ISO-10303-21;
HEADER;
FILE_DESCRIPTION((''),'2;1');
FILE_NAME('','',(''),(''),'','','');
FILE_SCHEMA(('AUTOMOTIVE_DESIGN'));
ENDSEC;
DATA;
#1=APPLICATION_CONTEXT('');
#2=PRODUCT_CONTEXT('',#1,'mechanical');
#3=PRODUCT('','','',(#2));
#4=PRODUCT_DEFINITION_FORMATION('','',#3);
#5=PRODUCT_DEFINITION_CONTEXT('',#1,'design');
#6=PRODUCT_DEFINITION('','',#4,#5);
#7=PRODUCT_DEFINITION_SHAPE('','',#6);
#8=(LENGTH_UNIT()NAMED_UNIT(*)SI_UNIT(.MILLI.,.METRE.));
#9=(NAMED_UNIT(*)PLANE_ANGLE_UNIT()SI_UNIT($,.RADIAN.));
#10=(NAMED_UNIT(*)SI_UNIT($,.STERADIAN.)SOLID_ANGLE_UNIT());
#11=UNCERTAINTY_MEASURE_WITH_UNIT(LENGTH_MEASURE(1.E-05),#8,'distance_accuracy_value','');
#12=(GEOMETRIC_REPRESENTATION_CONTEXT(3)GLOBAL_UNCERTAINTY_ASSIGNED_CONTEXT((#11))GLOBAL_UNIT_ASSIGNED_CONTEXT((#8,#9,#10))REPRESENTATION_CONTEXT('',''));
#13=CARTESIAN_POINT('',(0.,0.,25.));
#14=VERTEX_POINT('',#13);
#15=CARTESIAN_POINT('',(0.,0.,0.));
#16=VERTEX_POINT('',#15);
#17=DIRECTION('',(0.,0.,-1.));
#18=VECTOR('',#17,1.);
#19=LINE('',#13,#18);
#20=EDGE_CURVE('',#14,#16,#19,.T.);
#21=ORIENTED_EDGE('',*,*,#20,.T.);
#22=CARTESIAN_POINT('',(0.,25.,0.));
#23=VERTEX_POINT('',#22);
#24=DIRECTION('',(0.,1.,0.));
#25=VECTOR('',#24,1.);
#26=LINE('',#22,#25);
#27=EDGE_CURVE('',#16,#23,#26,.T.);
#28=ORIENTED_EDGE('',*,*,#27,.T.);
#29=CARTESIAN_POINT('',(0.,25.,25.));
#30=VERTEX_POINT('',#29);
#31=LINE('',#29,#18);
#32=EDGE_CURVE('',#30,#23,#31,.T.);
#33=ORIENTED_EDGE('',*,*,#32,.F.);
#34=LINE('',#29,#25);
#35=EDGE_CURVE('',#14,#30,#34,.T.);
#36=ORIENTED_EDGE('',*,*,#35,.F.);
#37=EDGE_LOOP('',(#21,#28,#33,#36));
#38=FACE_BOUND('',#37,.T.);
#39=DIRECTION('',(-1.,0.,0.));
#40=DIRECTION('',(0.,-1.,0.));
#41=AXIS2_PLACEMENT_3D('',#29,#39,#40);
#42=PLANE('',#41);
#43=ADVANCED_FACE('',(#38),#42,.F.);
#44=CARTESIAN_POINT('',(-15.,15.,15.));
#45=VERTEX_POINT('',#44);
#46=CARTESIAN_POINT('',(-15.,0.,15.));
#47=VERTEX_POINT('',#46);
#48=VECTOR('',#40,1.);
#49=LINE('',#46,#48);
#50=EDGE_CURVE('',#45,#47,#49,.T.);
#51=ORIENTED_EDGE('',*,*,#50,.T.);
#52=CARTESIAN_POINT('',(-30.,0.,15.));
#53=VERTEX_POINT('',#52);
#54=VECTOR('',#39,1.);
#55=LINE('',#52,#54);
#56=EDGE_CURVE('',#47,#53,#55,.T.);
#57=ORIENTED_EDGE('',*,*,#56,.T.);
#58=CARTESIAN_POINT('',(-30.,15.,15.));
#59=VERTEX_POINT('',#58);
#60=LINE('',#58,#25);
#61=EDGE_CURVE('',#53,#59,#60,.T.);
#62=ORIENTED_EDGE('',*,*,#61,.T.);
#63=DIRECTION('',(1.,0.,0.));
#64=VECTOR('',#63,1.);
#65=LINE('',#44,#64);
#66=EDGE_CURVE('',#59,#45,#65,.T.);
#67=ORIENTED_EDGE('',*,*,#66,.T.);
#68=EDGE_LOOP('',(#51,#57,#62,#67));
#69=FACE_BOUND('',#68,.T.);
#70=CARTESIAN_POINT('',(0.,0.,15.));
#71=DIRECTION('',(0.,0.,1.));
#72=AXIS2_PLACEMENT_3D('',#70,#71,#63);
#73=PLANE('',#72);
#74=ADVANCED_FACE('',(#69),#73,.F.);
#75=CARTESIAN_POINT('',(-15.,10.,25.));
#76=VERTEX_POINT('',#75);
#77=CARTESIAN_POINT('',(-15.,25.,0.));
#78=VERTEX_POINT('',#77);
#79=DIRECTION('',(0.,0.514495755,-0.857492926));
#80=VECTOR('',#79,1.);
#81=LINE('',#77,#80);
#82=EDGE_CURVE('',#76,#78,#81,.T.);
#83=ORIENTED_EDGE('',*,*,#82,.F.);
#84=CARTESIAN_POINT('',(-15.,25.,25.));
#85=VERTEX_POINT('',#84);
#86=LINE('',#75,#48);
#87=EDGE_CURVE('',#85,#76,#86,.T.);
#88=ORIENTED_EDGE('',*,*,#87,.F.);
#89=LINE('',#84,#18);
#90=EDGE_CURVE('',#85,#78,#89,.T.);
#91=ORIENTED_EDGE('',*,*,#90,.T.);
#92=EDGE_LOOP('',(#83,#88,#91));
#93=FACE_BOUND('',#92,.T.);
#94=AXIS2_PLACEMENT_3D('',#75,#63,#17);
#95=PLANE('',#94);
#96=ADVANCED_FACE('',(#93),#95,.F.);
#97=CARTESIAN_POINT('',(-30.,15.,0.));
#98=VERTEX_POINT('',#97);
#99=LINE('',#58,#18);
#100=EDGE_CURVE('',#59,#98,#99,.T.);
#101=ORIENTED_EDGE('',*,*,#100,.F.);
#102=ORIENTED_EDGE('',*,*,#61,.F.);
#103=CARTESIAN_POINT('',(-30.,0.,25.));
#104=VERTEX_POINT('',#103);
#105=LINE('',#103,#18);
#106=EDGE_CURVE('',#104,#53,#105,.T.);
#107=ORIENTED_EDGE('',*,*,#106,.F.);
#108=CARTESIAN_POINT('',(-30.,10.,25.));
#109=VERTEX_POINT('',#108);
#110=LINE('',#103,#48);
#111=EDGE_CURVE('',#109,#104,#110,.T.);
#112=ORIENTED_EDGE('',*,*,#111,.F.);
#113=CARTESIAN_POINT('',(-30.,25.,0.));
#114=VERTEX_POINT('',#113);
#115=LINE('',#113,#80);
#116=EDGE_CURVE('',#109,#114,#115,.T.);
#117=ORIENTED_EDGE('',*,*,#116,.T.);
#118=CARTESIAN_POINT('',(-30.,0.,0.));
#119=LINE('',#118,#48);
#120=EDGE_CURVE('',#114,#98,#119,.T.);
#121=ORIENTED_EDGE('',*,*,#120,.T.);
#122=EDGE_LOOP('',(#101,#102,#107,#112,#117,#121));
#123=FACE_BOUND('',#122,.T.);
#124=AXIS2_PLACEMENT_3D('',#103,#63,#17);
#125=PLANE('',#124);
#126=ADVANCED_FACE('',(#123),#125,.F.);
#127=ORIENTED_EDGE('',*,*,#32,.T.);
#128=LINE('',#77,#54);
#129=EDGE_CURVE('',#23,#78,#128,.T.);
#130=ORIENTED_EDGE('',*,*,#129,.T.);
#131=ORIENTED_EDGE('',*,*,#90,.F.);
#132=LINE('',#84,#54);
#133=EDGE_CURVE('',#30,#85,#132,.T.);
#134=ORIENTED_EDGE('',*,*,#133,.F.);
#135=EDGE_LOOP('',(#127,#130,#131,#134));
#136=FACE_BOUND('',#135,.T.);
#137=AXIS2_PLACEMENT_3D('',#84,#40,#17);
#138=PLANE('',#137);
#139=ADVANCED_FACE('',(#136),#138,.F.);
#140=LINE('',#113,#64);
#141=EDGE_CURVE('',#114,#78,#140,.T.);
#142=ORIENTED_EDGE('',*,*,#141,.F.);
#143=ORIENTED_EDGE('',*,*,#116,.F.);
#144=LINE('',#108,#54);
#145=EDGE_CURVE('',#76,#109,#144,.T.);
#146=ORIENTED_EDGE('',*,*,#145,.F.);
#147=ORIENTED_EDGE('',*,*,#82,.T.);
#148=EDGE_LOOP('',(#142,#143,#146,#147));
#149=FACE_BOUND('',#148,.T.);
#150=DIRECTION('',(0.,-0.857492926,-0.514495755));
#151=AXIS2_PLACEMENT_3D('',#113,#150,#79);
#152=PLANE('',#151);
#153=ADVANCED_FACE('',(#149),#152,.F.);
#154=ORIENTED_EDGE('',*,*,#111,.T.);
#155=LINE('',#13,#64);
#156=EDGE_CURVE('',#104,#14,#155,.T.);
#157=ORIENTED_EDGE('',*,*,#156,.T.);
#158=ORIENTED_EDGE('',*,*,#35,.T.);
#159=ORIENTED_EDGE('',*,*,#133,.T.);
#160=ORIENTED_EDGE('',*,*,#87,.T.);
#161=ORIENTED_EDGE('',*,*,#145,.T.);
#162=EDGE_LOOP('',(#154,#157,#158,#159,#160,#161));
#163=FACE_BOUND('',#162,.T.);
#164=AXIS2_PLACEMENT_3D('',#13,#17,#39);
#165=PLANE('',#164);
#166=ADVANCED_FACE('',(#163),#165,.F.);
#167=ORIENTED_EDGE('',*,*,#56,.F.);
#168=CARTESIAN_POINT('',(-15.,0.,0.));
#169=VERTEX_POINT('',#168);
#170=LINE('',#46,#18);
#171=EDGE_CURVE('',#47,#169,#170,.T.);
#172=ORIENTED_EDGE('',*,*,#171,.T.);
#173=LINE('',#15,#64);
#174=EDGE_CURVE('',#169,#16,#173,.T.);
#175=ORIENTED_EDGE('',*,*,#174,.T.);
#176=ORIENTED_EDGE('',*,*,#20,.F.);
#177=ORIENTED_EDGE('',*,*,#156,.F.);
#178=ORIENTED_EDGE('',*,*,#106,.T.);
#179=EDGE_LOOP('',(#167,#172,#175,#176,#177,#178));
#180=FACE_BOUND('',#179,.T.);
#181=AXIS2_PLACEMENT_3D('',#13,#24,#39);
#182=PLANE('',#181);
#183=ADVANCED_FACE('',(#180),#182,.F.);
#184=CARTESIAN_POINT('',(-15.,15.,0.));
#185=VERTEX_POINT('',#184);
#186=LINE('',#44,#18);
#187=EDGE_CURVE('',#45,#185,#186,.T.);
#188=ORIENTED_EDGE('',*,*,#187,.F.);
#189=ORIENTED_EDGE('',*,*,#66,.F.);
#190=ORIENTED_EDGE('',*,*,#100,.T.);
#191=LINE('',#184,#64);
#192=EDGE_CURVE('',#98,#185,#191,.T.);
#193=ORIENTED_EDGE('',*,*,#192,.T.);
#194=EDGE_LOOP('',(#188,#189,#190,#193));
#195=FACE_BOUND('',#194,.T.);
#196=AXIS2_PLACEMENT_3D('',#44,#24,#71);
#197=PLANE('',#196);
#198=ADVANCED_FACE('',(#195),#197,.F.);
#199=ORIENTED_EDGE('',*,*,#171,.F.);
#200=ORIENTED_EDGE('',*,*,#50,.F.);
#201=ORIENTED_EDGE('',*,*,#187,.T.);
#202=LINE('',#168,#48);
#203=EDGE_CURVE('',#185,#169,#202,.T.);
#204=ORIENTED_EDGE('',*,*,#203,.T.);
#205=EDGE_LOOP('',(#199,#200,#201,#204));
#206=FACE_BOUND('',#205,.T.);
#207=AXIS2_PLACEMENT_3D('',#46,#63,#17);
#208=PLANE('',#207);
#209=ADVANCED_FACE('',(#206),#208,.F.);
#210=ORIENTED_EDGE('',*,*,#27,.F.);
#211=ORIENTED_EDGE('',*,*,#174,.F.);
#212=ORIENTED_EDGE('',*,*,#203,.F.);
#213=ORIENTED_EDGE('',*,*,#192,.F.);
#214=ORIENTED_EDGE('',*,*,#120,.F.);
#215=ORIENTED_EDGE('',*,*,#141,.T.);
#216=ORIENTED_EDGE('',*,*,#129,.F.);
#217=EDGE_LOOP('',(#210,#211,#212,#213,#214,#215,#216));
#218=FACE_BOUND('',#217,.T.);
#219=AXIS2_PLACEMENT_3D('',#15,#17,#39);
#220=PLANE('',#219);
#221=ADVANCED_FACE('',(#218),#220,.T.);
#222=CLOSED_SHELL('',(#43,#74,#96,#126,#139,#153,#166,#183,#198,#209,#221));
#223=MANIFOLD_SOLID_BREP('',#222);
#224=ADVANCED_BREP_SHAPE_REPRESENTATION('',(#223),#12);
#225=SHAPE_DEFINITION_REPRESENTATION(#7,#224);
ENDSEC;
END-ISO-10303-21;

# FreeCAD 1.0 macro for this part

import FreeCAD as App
import Part
import Sketcher


def add_polygon(sketch, points):
    """Adds a closed chain of lines whose ends are joined by coincident constraints."""
    first, n = sketch.GeometryCount, len(points)
    for a, b in zip(points, points[1:] + points[:1]):
        sketch.addGeometry(Part.LineSegment(App.Vector(*a, 0), App.Vector(*b, 0)), False)
    for i in range(n):
        sketch.addConstraint(Sketcher.Constraint("Coincident", first + i, 2, first + (i + 1) % n, 1))

doc = App.newDocument("Part")
params = doc.addObject("Spreadsheet::Sheet", "Params")
for row, (alias, value) in enumerate([
    ("sketch1_width", "15 mm"),
    ("sketch1_height", "10 mm"),
    ("pad1_length", "25 mm"),
    ("sketch2_width", "15 mm"),
    ("sketch2_height", "25 mm"),
    ("pad2_length", "15 mm"),
    ("sketch3_width", "15 mm"),
    ("pocket1_length", "15 mm"),
], start=1):
    params.set(f"A{row}", alias)
    params.set(f"B{row}", "=" + value)
    params.setAlias(f"B{row}", alias)

body = doc.addObject("PartDesign::Body", "Body")

sketch1 = doc.addObject("Sketcher::SketchObject", "Sketch")
body.addObject(sketch1)
sketch1.AttachmentSupport = (doc.XY_Plane, [""])
sketch1.MapMode = "FlatFace"
add_polygon(sketch1, [(-15, 10), (-30, 10), (-30, 0), (0, 0), (0, 25), (-15, 25)])
sketch1.addConstraint([
    Sketcher.Constraint("Horizontal", 0),
    Sketcher.Constraint("Vertical", 1),
    Sketcher.Constraint("Horizontal", 2),
    Sketcher.Constraint("Vertical", 3),
    Sketcher.Constraint("Horizontal", 4),
    Sketcher.Constraint("Vertical", 5),
    Sketcher.Constraint("Coincident", 2, 2, -1, 1),
    Sketcher.Constraint("Equal", 0, 4),
    Sketcher.Constraint("Equal", 4, 5),
    Sketcher.Constraint("DistanceX", 0, 2, 0, 1, 15.0),
    Sketcher.Constraint("DistanceY", 1, 2, 1, 1, 10.0),
])
sketch1.setExpression("Constraints[15]", "Params.sketch1_width")
sketch1.setExpression("Constraints[16]", "Params.sketch1_height")
pad1 = doc.addObject("PartDesign::Pad", "Pad")
body.addObject(pad1)
pad1.Profile = sketch1
pad1.setExpression("Length", "Params.pad1_length")

sketch2 = doc.addObject("Sketcher::SketchObject", "Sketch001")
body.addObject(sketch2)
sketch2.AttachmentSupport = (doc.YZ_Plane, [""])
sketch2.MapMode = "FlatFace"
sketch2.AttachmentOffset = App.Placement(App.Vector(0, 0, -15), App.Rotation())
add_polygon(sketch2, [(10, 25), (25, 0), (10, 0)])
sketch2.addConstraint([
    Sketcher.Constraint("Horizontal", 1),
    Sketcher.Constraint("Vertical", 2),
    Sketcher.Constraint("PointOnObject", 0, 2, -1),
    Sketcher.Constraint("DistanceX", 1, 2, 1, 1, 15.0),
    Sketcher.Constraint("DistanceY", 2, 1, 2, 2, 25.0),
    Sketcher.Constraint("DistanceX", -1, 1, 0, 2, 25.0),
])
sketch2.setExpression("Constraints[6]", "Params.sketch2_width")
sketch2.setExpression("Constraints[7]", "Params.sketch2_height")
pad2 = doc.addObject("PartDesign::Pad", "Pad001")
body.addObject(pad2)
pad2.Profile = sketch2
pad2.setExpression("Length", "Params.pad2_length")
pad2.Reversed = True

sketch3 = doc.addObject("Sketcher::SketchObject", "Sketch002")
body.addObject(sketch3)
sketch3.AttachmentSupport = (doc.XY_Plane, [""])
sketch3.MapMode = "FlatFace"
add_polygon(sketch3, [(-15, 15), (-15, 0), (-30, 0), (-30, 15)])
sketch3.addConstraint([
    Sketcher.Constraint("Vertical", 0),
    Sketcher.Constraint("Horizontal", 1),
    Sketcher.Constraint("Vertical", 2),
    Sketcher.Constraint("Horizontal", 3),
    Sketcher.Constraint("PointOnObject", 0, 2, -1),
    Sketcher.Constraint("Equal", 3, 0),
    Sketcher.Constraint("DistanceX", 1, 2, 1, 1, 15.0),
    Sketcher.Constraint("DistanceX", 0, 2, -1, 1, 15.0),
])
sketch3.setExpression("Constraints[10]", "Params.sketch3_width")
pocket1 = doc.addObject("PartDesign::Pocket", "Pocket")
body.addObject(pocket1)
pocket1.Profile = sketch3
pocket1.setExpression("Length", "Params.pocket1_length")
pocket1.Reversed = True

doc.recompute()
